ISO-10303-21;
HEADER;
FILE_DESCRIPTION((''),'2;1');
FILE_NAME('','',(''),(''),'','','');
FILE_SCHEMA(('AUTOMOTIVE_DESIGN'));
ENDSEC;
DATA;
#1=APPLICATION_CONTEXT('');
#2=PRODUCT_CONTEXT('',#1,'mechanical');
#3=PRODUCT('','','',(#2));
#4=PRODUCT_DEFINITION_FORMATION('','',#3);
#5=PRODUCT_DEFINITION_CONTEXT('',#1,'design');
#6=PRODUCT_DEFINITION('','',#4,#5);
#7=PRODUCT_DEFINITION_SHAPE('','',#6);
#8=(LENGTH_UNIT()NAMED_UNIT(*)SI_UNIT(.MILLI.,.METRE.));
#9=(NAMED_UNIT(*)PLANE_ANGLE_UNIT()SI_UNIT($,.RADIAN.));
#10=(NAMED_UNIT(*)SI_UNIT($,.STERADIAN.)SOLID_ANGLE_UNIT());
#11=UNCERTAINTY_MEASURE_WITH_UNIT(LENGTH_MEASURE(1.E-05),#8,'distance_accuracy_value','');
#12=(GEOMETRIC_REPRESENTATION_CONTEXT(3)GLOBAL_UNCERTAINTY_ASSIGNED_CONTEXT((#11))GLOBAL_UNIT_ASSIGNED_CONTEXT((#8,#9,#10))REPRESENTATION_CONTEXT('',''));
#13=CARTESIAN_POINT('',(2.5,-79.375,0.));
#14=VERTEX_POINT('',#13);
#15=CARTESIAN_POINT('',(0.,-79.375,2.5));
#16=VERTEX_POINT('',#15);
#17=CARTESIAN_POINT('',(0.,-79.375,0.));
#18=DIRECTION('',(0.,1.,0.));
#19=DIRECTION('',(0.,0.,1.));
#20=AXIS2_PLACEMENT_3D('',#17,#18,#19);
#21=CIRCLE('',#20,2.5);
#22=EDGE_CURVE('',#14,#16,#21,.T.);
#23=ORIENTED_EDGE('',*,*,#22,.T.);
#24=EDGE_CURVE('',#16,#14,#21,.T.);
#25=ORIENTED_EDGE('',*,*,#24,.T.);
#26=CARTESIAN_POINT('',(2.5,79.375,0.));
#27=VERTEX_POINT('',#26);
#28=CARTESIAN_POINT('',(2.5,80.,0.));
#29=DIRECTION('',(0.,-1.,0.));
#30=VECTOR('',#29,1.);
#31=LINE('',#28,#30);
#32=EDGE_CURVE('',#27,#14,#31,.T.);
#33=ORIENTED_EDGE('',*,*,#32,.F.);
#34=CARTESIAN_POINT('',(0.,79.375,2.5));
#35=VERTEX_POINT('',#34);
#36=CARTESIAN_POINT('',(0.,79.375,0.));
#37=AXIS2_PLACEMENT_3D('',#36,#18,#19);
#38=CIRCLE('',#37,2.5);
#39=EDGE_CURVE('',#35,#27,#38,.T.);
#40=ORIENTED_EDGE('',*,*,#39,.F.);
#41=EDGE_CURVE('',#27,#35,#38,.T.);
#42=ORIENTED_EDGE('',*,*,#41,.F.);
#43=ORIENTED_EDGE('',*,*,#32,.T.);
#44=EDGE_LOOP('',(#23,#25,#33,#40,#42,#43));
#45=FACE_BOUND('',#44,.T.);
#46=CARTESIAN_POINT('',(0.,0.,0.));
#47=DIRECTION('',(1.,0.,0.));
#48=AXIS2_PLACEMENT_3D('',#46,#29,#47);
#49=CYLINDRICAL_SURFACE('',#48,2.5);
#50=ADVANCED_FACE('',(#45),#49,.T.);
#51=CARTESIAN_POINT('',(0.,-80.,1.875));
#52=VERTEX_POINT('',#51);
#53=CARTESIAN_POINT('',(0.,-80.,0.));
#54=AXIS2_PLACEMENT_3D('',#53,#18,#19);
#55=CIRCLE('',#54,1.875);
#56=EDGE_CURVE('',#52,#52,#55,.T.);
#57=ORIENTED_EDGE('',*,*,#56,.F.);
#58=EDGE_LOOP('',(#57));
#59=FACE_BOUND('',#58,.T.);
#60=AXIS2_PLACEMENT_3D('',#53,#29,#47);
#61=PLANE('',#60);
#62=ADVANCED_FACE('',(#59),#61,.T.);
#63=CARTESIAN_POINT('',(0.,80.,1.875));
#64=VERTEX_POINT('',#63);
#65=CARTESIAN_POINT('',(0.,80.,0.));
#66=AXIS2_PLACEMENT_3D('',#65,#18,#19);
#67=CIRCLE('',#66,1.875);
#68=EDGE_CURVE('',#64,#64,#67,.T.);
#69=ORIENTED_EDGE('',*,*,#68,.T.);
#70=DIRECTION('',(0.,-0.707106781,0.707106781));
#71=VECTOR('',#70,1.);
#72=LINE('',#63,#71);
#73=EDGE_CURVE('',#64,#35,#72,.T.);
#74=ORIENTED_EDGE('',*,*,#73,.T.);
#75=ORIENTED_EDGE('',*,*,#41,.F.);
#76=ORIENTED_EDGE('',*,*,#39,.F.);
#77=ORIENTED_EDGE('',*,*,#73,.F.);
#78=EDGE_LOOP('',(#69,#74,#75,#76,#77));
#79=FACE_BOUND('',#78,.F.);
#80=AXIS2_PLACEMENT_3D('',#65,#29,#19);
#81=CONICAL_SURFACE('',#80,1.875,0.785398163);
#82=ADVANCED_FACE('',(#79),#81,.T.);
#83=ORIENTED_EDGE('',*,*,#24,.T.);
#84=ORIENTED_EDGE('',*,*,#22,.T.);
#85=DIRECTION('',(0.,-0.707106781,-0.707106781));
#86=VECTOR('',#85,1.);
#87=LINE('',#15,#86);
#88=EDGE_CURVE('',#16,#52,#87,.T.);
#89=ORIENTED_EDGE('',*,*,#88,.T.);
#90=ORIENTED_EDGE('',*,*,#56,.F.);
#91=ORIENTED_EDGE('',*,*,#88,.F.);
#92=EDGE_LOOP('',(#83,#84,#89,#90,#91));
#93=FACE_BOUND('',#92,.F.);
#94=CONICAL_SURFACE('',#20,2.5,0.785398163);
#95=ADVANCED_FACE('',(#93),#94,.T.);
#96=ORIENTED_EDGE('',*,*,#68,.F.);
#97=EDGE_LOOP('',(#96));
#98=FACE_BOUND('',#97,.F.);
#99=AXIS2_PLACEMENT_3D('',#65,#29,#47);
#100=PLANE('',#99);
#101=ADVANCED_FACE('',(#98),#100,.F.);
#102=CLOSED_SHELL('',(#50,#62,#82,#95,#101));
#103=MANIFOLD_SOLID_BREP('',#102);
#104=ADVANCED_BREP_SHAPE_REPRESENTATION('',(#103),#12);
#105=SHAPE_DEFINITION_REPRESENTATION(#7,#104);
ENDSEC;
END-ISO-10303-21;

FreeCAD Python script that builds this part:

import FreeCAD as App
import Part
import Sketcher

doc = App.newDocument("Part")
body = doc.addObject("PartDesign::Body", "Body")

sketch1 = body.newObject("Sketcher::SketchObject", "Sketch")
sketch1.AttachmentSupport = (doc.getObject("XZ_Plane"), [""])
sketch1.MapMode = "FlatFace"
sketch1.addGeometry(Part.Circle(App.Vector(0, 0, 0), App.Vector(0, 0, 1), 2.5), False)
sketch1.addConstraint([
    Sketcher.Constraint("Coincident", 0, 3, -1, 1),
    Sketcher.Constraint("Diameter", 0, 5.0),
])
pad1 = body.newObject("PartDesign::Pad", "Pad")
pad1.Profile = sketch1
pad1.Length = 160
pad1.Midplane = True

sketch2 = body.newObject("Sketcher::SketchObject", "Sketch001")
sketch2.AttachmentSupport = (doc.getObject("YZ_Plane"), [""])
sketch2.MapMode = "FlatFace"
sketch2.addGeometry([
    Part.LineSegment(App.Vector(80, 4.5, 0), App.Vector(-80, 4.5, 0)),
    Part.LineSegment(App.Vector(-80, 4.5, 0), App.Vector(-80, 1.9, 0)),
    Part.LineSegment(App.Vector(-80, 1.9, 0), App.Vector(-79.4, 2.5, 0)),
    Part.LineSegment(App.Vector(-79.4, 2.5, 0), App.Vector(79.4, 2.5, 0)),
    Part.LineSegment(App.Vector(79.4, 2.5, 0), App.Vector(80, 1.9, 0)),
    Part.LineSegment(App.Vector(80, 1.9, 0), App.Vector(80, 4.5, 0)),
], False)
sketch2.addConstraint([
    Sketcher.Constraint("Coincident", 0, 2, 1, 1),
    Sketcher.Constraint("Coincident", 1, 2, 2, 1),
    Sketcher.Constraint("Coincident", 2, 2, 3, 1),
    Sketcher.Constraint("Coincident", 3, 2, 4, 1),
    Sketcher.Constraint("Coincident", 4, 2, 5, 1),
    Sketcher.Constraint("Coincident", 5, 2, 0, 1),
    Sketcher.Constraint("Horizontal", 0),
    Sketcher.Constraint("Vertical", 1),
    Sketcher.Constraint("Horizontal", 3),
    Sketcher.Constraint("Vertical", 5),
    Sketcher.Constraint("Symmetric", 1, 2, 4, 2, -2),
    Sketcher.Constraint("Perpendicular", 2, 4),
    Sketcher.Constraint("Equal", 2, 4),
    Sketcher.Constraint("DistanceX", 0, 2, 0, 1, 160.0),
    Sketcher.Constraint("DistanceY", 2, 2, 0, 2, 2.0),
    Sketcher.Constraint("DistanceX", 3, 1, 3, 2, 158.75),
    Sketcher.Constraint("DistanceY", -1, 1, 0, 2, 4.5),
])
groove = body.newObject("PartDesign::Groove", "Groove")
groove.Profile = sketch2
groove.ReferenceAxis = (sketch2, ["H_Axis"])
groove.Angle = 360

doc.recompute()
